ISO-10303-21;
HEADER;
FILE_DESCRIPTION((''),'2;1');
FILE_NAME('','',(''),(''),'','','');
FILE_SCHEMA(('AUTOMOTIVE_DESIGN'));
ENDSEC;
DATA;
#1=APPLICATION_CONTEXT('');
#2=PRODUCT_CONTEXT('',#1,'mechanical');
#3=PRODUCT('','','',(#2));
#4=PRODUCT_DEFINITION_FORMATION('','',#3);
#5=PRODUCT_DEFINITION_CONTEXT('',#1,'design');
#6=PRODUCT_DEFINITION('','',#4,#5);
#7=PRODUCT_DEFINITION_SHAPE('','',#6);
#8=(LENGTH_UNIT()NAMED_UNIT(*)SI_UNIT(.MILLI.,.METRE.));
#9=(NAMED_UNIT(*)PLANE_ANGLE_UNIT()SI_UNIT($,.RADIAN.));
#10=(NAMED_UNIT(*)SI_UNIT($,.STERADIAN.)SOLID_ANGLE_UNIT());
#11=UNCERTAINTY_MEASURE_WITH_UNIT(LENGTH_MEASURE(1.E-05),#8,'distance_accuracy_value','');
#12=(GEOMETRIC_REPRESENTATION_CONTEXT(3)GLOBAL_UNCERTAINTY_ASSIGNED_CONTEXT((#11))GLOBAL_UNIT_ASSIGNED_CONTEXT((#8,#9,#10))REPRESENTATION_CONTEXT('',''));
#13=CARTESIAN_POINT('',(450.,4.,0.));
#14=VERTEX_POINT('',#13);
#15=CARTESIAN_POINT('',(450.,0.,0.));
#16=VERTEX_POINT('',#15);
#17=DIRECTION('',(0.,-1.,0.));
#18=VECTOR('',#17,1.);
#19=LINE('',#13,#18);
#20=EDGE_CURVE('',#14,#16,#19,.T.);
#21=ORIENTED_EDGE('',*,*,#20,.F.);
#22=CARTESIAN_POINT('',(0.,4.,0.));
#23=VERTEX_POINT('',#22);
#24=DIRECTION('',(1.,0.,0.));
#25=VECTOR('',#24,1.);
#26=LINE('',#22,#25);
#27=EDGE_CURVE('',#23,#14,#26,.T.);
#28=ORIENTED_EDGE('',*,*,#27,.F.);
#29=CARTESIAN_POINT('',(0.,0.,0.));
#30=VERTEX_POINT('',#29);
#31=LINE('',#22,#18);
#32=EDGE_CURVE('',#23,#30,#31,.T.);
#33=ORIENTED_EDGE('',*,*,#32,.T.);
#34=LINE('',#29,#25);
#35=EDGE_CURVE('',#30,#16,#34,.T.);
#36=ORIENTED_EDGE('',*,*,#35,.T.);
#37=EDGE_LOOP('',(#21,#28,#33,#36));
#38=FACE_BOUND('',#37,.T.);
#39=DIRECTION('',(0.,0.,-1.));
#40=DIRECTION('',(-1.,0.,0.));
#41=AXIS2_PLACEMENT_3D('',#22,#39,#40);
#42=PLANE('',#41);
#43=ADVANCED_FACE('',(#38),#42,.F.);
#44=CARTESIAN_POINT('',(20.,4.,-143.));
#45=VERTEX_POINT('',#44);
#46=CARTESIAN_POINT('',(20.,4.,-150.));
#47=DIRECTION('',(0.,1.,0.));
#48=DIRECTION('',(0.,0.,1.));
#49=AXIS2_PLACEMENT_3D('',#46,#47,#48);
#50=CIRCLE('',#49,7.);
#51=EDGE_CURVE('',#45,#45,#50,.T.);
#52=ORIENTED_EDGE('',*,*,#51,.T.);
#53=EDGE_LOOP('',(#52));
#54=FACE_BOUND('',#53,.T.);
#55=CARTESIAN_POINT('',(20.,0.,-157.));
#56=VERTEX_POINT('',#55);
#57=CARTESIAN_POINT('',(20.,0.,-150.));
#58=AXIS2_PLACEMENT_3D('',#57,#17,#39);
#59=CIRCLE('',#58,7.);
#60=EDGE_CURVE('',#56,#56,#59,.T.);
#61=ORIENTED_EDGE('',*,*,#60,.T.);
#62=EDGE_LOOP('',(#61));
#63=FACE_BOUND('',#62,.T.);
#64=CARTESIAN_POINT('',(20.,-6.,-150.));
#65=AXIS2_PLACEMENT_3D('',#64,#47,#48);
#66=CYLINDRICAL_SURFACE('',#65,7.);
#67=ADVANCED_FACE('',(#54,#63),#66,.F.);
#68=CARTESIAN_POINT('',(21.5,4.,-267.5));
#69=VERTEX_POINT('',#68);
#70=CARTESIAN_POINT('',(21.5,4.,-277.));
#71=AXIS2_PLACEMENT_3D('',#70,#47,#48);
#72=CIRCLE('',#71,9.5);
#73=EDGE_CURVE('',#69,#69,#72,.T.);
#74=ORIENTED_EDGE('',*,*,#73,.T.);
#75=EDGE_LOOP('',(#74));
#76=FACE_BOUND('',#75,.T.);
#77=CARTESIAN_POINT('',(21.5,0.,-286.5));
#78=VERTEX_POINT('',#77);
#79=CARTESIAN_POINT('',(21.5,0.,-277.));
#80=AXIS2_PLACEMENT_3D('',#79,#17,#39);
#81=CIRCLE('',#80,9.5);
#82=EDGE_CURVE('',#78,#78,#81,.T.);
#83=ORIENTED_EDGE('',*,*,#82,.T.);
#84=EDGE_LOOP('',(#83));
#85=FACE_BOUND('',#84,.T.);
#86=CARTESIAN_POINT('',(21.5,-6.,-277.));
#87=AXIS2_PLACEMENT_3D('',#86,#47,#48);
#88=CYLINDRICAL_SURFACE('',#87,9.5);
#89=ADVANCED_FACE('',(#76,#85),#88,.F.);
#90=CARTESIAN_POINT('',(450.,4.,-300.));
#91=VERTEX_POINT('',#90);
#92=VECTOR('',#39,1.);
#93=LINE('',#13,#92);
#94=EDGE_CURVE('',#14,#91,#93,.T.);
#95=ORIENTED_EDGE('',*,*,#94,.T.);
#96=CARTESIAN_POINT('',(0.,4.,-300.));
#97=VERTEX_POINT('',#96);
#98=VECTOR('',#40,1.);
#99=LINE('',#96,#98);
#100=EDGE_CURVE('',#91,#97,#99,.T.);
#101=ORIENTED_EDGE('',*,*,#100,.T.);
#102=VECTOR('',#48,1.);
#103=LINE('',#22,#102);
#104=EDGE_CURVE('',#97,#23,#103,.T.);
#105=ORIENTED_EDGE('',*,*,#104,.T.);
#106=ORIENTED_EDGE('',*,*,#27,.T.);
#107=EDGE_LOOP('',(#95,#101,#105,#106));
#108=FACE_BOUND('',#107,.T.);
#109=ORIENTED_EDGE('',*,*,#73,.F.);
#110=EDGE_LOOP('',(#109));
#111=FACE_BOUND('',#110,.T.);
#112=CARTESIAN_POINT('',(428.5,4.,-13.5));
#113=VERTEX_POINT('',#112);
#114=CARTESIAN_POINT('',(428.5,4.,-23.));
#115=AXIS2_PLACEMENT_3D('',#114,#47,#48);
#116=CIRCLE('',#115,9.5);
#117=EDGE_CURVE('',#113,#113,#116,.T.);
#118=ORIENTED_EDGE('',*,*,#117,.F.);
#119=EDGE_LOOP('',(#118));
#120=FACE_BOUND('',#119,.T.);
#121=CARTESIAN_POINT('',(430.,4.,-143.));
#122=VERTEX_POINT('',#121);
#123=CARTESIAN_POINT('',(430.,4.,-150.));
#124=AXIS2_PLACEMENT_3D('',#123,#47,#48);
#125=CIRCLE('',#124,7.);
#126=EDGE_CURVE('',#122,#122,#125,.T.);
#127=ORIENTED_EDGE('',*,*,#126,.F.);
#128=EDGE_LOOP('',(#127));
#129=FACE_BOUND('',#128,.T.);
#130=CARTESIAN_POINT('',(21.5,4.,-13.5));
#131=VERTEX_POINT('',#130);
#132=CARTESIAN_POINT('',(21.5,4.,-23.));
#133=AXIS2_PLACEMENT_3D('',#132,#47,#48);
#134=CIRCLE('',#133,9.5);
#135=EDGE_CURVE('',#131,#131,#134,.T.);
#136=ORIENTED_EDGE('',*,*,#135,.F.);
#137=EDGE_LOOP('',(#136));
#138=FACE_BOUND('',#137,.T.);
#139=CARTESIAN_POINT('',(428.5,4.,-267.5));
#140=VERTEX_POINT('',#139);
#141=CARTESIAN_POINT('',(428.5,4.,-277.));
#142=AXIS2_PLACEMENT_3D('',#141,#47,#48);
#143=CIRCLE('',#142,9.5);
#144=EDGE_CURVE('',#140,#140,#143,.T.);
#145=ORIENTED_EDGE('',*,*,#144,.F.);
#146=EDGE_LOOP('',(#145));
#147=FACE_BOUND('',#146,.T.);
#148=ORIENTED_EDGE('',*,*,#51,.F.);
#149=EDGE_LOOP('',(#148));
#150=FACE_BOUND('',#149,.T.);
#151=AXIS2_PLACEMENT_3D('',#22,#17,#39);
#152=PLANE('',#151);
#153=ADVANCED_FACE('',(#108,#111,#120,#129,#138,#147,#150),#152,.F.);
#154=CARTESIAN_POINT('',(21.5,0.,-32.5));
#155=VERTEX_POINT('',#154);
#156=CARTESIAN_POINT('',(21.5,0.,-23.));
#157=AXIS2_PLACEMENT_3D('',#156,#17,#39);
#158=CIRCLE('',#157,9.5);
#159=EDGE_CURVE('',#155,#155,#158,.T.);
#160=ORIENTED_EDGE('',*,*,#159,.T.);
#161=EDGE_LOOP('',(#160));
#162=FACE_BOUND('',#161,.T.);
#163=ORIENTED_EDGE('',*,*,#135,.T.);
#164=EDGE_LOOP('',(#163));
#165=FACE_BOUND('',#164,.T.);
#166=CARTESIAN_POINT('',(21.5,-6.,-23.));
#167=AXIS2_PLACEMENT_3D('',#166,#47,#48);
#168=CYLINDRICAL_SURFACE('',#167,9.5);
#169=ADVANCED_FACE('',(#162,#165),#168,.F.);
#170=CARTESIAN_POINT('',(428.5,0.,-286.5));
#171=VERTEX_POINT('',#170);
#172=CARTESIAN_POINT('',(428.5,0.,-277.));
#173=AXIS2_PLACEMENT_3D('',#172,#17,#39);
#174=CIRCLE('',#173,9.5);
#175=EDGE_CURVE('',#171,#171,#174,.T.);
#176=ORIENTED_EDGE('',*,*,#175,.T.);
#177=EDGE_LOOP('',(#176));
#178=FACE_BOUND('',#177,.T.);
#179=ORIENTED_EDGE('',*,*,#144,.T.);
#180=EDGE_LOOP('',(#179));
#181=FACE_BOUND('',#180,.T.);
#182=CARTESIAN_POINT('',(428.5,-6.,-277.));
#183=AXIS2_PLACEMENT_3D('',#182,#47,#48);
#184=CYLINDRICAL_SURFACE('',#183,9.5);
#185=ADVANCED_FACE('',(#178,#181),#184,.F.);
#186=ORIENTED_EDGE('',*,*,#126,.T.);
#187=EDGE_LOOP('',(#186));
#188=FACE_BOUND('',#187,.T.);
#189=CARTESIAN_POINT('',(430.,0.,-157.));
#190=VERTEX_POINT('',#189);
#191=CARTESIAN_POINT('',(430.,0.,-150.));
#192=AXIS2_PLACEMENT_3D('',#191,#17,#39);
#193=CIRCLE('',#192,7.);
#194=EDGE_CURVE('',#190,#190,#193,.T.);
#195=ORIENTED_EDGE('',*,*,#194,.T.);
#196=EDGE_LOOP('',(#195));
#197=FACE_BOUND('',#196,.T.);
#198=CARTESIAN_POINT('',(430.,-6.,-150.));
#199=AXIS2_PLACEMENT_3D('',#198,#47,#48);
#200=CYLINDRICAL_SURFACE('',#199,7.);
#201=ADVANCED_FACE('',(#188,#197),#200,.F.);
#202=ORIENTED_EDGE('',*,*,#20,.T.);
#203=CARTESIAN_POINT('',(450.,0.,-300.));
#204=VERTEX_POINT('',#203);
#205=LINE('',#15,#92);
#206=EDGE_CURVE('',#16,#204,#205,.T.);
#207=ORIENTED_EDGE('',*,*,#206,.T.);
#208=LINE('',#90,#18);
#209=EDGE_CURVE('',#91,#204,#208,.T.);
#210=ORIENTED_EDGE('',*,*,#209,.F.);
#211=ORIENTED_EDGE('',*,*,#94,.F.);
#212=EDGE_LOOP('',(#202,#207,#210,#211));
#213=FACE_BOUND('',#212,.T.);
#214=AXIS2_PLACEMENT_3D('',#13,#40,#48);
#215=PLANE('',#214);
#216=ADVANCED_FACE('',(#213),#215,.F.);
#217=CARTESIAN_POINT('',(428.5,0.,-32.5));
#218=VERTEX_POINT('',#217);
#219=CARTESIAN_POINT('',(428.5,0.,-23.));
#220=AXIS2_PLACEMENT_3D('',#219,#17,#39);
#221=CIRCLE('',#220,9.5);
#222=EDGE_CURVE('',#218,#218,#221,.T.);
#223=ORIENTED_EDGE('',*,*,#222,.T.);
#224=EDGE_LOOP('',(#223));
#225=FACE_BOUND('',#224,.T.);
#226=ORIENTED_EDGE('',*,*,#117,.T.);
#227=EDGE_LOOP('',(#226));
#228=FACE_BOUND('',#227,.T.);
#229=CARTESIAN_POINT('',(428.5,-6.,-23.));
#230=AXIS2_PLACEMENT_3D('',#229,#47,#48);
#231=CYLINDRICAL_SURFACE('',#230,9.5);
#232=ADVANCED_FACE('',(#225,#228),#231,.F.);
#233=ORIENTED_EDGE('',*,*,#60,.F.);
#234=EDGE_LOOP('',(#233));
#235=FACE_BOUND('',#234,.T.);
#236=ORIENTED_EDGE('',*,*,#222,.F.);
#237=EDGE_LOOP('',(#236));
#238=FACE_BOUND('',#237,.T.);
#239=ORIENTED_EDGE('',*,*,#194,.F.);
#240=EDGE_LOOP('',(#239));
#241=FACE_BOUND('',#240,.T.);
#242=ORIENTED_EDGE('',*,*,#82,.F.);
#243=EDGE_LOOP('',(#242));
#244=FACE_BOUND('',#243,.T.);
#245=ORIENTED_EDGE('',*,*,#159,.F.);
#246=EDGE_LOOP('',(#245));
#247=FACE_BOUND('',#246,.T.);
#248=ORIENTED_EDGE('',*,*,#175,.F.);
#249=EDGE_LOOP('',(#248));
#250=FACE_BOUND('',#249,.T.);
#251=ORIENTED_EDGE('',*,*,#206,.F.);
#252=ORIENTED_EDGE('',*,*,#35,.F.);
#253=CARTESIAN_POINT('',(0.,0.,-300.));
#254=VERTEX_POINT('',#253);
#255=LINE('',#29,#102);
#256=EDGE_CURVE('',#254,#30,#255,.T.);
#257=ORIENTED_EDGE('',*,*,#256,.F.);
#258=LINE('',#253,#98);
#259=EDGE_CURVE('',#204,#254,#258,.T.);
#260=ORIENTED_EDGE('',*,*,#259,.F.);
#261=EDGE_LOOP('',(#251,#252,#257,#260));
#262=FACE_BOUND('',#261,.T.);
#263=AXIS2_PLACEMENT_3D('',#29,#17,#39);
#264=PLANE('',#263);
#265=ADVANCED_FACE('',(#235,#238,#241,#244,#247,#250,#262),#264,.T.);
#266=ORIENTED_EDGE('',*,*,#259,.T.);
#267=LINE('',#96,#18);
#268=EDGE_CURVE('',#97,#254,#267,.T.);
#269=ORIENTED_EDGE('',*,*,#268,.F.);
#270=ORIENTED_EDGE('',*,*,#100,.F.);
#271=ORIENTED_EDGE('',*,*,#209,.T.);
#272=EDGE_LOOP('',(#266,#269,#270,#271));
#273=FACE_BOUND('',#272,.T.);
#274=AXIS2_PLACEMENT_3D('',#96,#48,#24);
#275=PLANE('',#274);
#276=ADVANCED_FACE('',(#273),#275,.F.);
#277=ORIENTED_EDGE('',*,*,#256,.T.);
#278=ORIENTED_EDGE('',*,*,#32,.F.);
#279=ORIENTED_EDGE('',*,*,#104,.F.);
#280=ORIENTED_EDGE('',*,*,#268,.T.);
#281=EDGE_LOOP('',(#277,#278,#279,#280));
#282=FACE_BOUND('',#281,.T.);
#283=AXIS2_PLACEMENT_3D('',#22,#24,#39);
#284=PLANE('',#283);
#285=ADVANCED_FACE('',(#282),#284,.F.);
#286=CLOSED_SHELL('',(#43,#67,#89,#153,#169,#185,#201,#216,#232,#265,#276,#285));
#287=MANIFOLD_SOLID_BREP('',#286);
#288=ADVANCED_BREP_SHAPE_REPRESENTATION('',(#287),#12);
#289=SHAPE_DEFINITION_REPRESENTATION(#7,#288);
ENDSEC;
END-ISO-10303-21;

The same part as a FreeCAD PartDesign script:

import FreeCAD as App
import Part
import Sketcher

V = App.Vector
Q = App.Units.Quantity


def add_polygon(sketch, points):
    """Adds a closed chain of lines whose ends are joined by coincident constraints."""
    first, n = sketch.GeometryCount, len(points)
    for a, b in zip(points, points[1:] + points[:1]):
        sketch.addGeometry(Part.LineSegment(App.Vector(*a, 0), App.Vector(*b, 0)), False)
    for i in range(n):
        sketch.addConstraint(Sketcher.Constraint("Coincident", first + i, 2, first + (i + 1) % n, 1))

doc = App.newDocument("Part")
body = doc.addObject("PartDesign::Body", "Body")

sketch1 = doc.addObject("Sketcher::SketchObject", "Sketch")
body.addObject(sketch1)
sketch1.AttachmentSupport = (doc.XZ_Plane, [""])
sketch1.MapMode = "FlatFace"
add_polygon(sketch1, [(0, -300), (0, 0), (450, 0), (450, -300)])
sketch1.addConstraint([
    Sketcher.Constraint("Vertical", 0),
    Sketcher.Constraint("Horizontal", 1),
    Sketcher.Constraint("Vertical", 2),
    Sketcher.Constraint("Horizontal", 3),
    Sketcher.Constraint("Coincident", 0, 2, -1, 1),
    Sketcher.Constraint("DistanceX", 1, 1, 1, 2, Q("450 mm")),
    Sketcher.Constraint("DistanceY", 0, 1, 0, 2, Q("300 mm")),
])
pad1 = doc.addObject("PartDesign::Pad", "Pad")
body.addObject(pad1)
pad1.Profile = sketch1
pad1.Length = 4
pad1.Reversed = True

sketch2 = doc.addObject("Sketcher::SketchObject", "Sketch001")
body.addObject(sketch2)
sketch2.AttachmentSupport = (doc.XZ_Plane, [""])
sketch2.MapMode = "FlatFace"
sketch2.AttachmentOffset = App.Placement(V(0, 0, -4), App.Rotation())
sketch2.addGeometry([
    Part.Circle(V(22, -23, 0), V(0, 0, 1), 10),
    Part.Circle(V(20, -150, 0), V(0, 0, 1), 7),
    Part.Circle(V(22, -277, 0), V(0, 0, 1), 10),
    Part.Circle(V(428, -23, 0), V(0, 0, 1), 10),
    Part.Circle(V(430, -150, 0), V(0, 0, 1), 7),
    Part.Circle(V(428, -277, 0), V(0, 0, 1), 10),
], False)
sketch2.addConstraint([
    Sketcher.Constraint("Equal", 0, 2),
    Sketcher.Constraint("Equal", 2, 3),
    Sketcher.Constraint("Equal", 1, 4),
    Sketcher.Constraint("Equal", 3, 5),
    Sketcher.Constraint("Horizontal", 0, 3, 3, 3),
    Sketcher.Constraint("Horizontal", 1, 3, 4, 3),
    Sketcher.Constraint("Horizontal", 2, 3, 5, 3),
    Sketcher.Constraint("Vertical", 0, 3, 2, 3),
    Sketcher.Constraint("Vertical", 3, 3, 5, 3),
    Sketcher.Constraint("Diameter", 0, Q("19 mm")),
    Sketcher.Constraint("Diameter", 1, Q("14 mm")),
    Sketcher.Constraint("DistanceY", 0, 3, -1, 1, Q("23 mm")),
    Sketcher.Constraint("DistanceX", -1, 1, 1, 3, Q("20 mm")),
    Sketcher.Constraint("DistanceY", 1, 3, -1, 1, Q("150 mm")),
    Sketcher.Constraint("DistanceY", 2, 3, -1, 1, Q("277 mm")),
    Sketcher.Constraint("DistanceX", -1, 1, 4, 3, Q("430 mm")),
    Sketcher.Constraint("DistanceX", 0, 3, 3, 3, Q("407 mm")),
    Sketcher.Constraint("DistanceX", -1, 1, 0, 3, Q("21.5 mm")),
])
pocket1 = doc.addObject("PartDesign::Pocket", "Pocket")
body.addObject(pocket1)
pocket1.Profile = sketch2
pocket1.Length = 10
pocket1.Reversed = True

doc.recompute()
